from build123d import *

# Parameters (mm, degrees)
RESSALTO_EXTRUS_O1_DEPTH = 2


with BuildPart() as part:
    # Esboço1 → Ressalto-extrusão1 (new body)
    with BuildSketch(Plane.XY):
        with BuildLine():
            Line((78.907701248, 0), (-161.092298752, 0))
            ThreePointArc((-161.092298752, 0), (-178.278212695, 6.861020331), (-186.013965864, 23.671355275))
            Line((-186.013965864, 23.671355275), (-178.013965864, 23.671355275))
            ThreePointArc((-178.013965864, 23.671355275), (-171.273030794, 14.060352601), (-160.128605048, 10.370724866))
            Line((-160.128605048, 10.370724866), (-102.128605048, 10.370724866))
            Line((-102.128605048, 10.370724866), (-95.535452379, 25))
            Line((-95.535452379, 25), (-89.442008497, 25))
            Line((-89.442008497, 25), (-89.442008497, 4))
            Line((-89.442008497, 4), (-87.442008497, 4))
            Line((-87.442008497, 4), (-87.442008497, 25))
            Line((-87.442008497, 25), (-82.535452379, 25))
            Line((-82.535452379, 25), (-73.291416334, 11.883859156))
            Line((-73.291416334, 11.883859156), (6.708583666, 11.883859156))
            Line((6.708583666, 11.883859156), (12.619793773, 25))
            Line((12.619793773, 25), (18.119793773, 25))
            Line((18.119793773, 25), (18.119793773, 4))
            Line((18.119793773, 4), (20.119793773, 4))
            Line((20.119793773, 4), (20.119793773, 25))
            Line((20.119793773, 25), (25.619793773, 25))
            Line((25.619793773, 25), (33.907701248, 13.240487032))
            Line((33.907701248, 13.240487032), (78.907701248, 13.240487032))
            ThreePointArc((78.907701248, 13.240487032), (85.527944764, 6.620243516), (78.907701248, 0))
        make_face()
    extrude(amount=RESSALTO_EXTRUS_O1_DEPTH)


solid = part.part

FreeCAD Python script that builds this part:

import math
import FreeCAD as App
import Part
import Sketcher
from FreeCAD import Vector
Q = App.Units.Quantity

doc = App.newDocument("Part")
body = doc.addObject("PartDesign::Body", "Body")

# Sketch on XY plane
sketch1 = doc.addObject("Sketcher::SketchObject", "Sketch")
body.addObject(sketch1)
sketch1.AttachmentSupport = (doc.XY_Plane, [""])
sketch1.MapMode = "FlatFace"
sketch1.addGeometry(Part.LineSegment(Vector(-161.1, 0, 0), Vector(78.9, 0, 0)), False)
sketch1.addGeometry(Part.ArcOfCircle(Part.Circle(Vector(78.9, 6.6, 0), Vector(0, 0, 1), 6.6), math.radians(-90), math.radians(90)), False)
sketch1.addGeometry(Part.LineSegment(Vector(78.9, 13.2, 0), Vector(33.9, 13.2, 0)), False)
sketch1.addGeometry(Part.LineSegment(Vector(33.9, 13.2, 0), Vector(25.6, 25, 0)), False)
sketch1.addGeometry(Part.LineSegment(Vector(25.6, 25, 0), Vector(20.1, 25, 0)), False)
sketch1.addGeometry(Part.LineSegment(Vector(20.1, 25, 0), Vector(20.1, 4, 0)), False)
sketch1.addGeometry(Part.LineSegment(Vector(20.1, 4, 0), Vector(18.1, 4, 0)), False)
sketch1.addGeometry(Part.LineSegment(Vector(18.1, 4, 0), Vector(18.1, 25, 0)), False)
sketch1.addGeometry(Part.LineSegment(Vector(18.1, 25, 0), Vector(12.6, 25, 0)), False)
sketch1.addGeometry(Part.LineSegment(Vector(12.6, 25, 0), Vector(6.7, 11.9, 0)), False)
sketch1.addGeometry(Part.LineSegment(Vector(6.7, 11.9, 0), Vector(-73.3, 11.9, 0)), False)
sketch1.addGeometry(Part.LineSegment(Vector(-73.3, 11.9, 0), Vector(-82.5, 25, 0)), False)
sketch1.addGeometry(Part.LineSegment(Vector(-82.5, 25, 0), Vector(-87.4, 25, 0)), False)
sketch1.addGeometry(Part.LineSegment(Vector(-87.4, 25, 0), Vector(-87.4, 4, 0)), False)
sketch1.addGeometry(Part.LineSegment(Vector(-87.4, 4, 0), Vector(-89.4, 4, 0)), False)
sketch1.addGeometry(Part.LineSegment(Vector(-89.4, 4, 0), Vector(-89.4, 25, 0)), False)
sketch1.addGeometry(Part.LineSegment(Vector(-89.4, 25, 0), Vector(-95.5, 25, 0)), False)
sketch1.addGeometry(Part.LineSegment(Vector(-95.5, 25, 0), Vector(-102.1, 10.4, 0)), False)
sketch1.addGeometry(Part.LineSegment(Vector(-102.1, 10.4, 0), Vector(-160.1, 10.4, 0)), False)
sketch1.addGeometry(Part.ArcOfCircle(Part.Circle(Vector(-160.1, 29, 0), Vector(0, 0, 1), 18.7), math.radians(-163), math.radians(-90)), False)
sketch1.addGeometry(Part.LineSegment(Vector(-178, 23.7, 0), Vector(-186, 23.7, 0)), False)
sketch1.addGeometry(Part.ArcOfCircle(Part.Circle(Vector(-161.1, 25, 0), Vector(0, 0, 1), 25), math.radians(-177), math.radians(-90)), False)
sketch1.addConstraint(Sketcher.Constraint("Tangent", 0, 2, 1, 1))
sketch1.addConstraint(Sketcher.Constraint("Tangent", 1, 2, 2, 1))
sketch1.addConstraint(Sketcher.Constraint("Coincident", 2, 2, 3, 1))
sketch1.addConstraint(Sketcher.Constraint("Coincident", 3, 2, 4, 1))
sketch1.addConstraint(Sketcher.Constraint("Coincident", 4, 2, 5, 1))
sketch1.addConstraint(Sketcher.Constraint("Coincident", 5, 2, 6, 1))
sketch1.addConstraint(Sketcher.Constraint("Coincident", 6, 2, 7, 1))
sketch1.addConstraint(Sketcher.Constraint("Coincident", 7, 2, 8, 1))
sketch1.addConstraint(Sketcher.Constraint("Coincident", 8, 2, 9, 1))
sketch1.addConstraint(Sketcher.Constraint("Coincident", 9, 2, 10, 1))
sketch1.addConstraint(Sketcher.Constraint("Coincident", 10, 2, 11, 1))
sketch1.addConstraint(Sketcher.Constraint("Coincident", 11, 2, 12, 1))
sketch1.addConstraint(Sketcher.Constraint("Coincident", 12, 2, 13, 1))
sketch1.addConstraint(Sketcher.Constraint("Coincident", 13, 2, 14, 1))
sketch1.addConstraint(Sketcher.Constraint("Coincident", 14, 2, 15, 1))
sketch1.addConstraint(Sketcher.Constraint("Coincident", 15, 2, 16, 1))
sketch1.addConstraint(Sketcher.Constraint("Coincident", 16, 2, 17, 1))
sketch1.addConstraint(Sketcher.Constraint("Coincident", 17, 2, 18, 1))
sketch1.addConstraint(Sketcher.Constraint("Tangent", 18, 2, 19, 2))
sketch1.addConstraint(Sketcher.Constraint("Coincident", 19, 1, 20, 1))
sketch1.addConstraint(Sketcher.Constraint("Coincident", 20, 2, 21, 1))
sketch1.addConstraint(Sketcher.Constraint("Tangent", 21, 2, 0, 1))
sketch1.addConstraint(Sketcher.Constraint("Horizontal", 0))
sketch1.addConstraint(Sketcher.Constraint("Horizontal", 2))
sketch1.addConstraint(Sketcher.Constraint("Horizontal", 4))
sketch1.addConstraint(Sketcher.Constraint("Vertical", 5))
sketch1.addConstraint(Sketcher.Constraint("Horizontal", 6))
sketch1.addConstraint(Sketcher.Constraint("Vertical", 7))
sketch1.addConstraint(Sketcher.Constraint("Horizontal", 8))
sketch1.addConstraint(Sketcher.Constraint("Horizontal", 10))
sketch1.addConstraint(Sketcher.Constraint("Horizontal", 12))
sketch1.addConstraint(Sketcher.Constraint("Vertical", 13))
sketch1.addConstraint(Sketcher.Constraint("Horizontal", 14))
sketch1.addConstraint(Sketcher.Constraint("Vertical", 15))
sketch1.addConstraint(Sketcher.Constraint("Horizontal", 16))
sketch1.addConstraint(Sketcher.Constraint("Horizontal", 18))
sketch1.addConstraint(Sketcher.Constraint("Horizontal", 20))
sketch1.addConstraint(Sketcher.Constraint("PointOnObject", 0, 2, -1))
sketch1.addConstraint(Sketcher.Constraint("Parallel", 3, 11))
sketch1.addConstraint(Sketcher.Constraint("Parallel", 9, 17))
sketch1.addConstraint(Sketcher.Constraint("Horizontal", 4, 2, 7, 2))
sketch1.addConstraint(Sketcher.Constraint("Horizontal", 8, 2, 11, 2))
sketch1.addConstraint(Sketcher.Constraint("Horizontal", 6, 2, 13, 2))
sketch1.addConstraint(Sketcher.Constraint("Horizontal", 12, 2, 15, 2))
sketch1.addConstraint(Sketcher.Constraint("Equal", 4, 8))
sketch1.addConstraint(Sketcher.Constraint("Equal", 6, 14))
sketch1.addConstraint(Sketcher.Constraint("Equal", 3, 9))
sketch1.addConstraint(Sketcher.Constraint("Equal", 11, 17))
sketch1.addConstraint(Sketcher.Constraint("DistanceX", 0, 1, 0, 2, Q("240 mm")))
sketch1.addConstraint(Sketcher.Constraint("DistanceX", 2, 2, 2, 1, Q("45 mm")))
sketch1.addConstraint(Sketcher.Constraint("DistanceX", 6, 2, 6, 1, Q("2 mm")))
sketch1.addConstraint(Sketcher.Constraint("DistanceX", 10, 2, 10, 1, Q("80 mm")))
sketch1.addConstraint(Sketcher.Constraint("DistanceX", 18, 2, 18, 1, Q("58 mm")))
sketch1.addConstraint(Sketcher.Constraint("DistanceX", 20, 2, 20, 1, Q("8 mm")))
sketch1.addConstraint(Sketcher.Constraint("DistanceY", 5, 2, 5, 1, Q("21 mm")))
sketch1.addConstraint(Sketcher.Constraint("DistanceX", 4, 2, 4, 1, Q("5.5 mm")))
sketch1.addConstraint(Sketcher.Constraint("DistanceY", -1, 1, 3, 2, Q("25 mm")))
sketch1.addConstraint(Sketcher.Constraint("DistanceX", 16, 2, 11, 2, Q("13 mm")))
sketch1.addConstraint(Sketcher.Constraint("Radius", 19, Q("18.67554 mm")))
sketch1.addConstraint(Sketcher.Constraint("Radius", 1, Q("6.620244 mm")))
sketch1.addConstraint(Sketcher.Constraint("Radius", 21, Q("24.954688 mm")))
sketch1.addConstraint(Sketcher.Constraint("DistanceX", -1, 1, 1, 3, Q("78.907701 mm")))
sketch1.addConstraint(Sketcher.Constraint("DistanceX", 19, 3, 3, 2, Q("185.748399 mm")))
sketch1.addConstraint(Sketcher.Constraint("Distance", 11, Q("16.04635 mm")))
sketch1.addConstraint(Sketcher.Constraint("DistanceX", 12, 2, 12, 1, Q("4.906556 mm")))
pad1 = doc.addObject("PartDesign::Pad", "Pad")
body.addObject(pad1)
pad1.Profile = sketch1
pad1.Length = 2

doc.recompute()
